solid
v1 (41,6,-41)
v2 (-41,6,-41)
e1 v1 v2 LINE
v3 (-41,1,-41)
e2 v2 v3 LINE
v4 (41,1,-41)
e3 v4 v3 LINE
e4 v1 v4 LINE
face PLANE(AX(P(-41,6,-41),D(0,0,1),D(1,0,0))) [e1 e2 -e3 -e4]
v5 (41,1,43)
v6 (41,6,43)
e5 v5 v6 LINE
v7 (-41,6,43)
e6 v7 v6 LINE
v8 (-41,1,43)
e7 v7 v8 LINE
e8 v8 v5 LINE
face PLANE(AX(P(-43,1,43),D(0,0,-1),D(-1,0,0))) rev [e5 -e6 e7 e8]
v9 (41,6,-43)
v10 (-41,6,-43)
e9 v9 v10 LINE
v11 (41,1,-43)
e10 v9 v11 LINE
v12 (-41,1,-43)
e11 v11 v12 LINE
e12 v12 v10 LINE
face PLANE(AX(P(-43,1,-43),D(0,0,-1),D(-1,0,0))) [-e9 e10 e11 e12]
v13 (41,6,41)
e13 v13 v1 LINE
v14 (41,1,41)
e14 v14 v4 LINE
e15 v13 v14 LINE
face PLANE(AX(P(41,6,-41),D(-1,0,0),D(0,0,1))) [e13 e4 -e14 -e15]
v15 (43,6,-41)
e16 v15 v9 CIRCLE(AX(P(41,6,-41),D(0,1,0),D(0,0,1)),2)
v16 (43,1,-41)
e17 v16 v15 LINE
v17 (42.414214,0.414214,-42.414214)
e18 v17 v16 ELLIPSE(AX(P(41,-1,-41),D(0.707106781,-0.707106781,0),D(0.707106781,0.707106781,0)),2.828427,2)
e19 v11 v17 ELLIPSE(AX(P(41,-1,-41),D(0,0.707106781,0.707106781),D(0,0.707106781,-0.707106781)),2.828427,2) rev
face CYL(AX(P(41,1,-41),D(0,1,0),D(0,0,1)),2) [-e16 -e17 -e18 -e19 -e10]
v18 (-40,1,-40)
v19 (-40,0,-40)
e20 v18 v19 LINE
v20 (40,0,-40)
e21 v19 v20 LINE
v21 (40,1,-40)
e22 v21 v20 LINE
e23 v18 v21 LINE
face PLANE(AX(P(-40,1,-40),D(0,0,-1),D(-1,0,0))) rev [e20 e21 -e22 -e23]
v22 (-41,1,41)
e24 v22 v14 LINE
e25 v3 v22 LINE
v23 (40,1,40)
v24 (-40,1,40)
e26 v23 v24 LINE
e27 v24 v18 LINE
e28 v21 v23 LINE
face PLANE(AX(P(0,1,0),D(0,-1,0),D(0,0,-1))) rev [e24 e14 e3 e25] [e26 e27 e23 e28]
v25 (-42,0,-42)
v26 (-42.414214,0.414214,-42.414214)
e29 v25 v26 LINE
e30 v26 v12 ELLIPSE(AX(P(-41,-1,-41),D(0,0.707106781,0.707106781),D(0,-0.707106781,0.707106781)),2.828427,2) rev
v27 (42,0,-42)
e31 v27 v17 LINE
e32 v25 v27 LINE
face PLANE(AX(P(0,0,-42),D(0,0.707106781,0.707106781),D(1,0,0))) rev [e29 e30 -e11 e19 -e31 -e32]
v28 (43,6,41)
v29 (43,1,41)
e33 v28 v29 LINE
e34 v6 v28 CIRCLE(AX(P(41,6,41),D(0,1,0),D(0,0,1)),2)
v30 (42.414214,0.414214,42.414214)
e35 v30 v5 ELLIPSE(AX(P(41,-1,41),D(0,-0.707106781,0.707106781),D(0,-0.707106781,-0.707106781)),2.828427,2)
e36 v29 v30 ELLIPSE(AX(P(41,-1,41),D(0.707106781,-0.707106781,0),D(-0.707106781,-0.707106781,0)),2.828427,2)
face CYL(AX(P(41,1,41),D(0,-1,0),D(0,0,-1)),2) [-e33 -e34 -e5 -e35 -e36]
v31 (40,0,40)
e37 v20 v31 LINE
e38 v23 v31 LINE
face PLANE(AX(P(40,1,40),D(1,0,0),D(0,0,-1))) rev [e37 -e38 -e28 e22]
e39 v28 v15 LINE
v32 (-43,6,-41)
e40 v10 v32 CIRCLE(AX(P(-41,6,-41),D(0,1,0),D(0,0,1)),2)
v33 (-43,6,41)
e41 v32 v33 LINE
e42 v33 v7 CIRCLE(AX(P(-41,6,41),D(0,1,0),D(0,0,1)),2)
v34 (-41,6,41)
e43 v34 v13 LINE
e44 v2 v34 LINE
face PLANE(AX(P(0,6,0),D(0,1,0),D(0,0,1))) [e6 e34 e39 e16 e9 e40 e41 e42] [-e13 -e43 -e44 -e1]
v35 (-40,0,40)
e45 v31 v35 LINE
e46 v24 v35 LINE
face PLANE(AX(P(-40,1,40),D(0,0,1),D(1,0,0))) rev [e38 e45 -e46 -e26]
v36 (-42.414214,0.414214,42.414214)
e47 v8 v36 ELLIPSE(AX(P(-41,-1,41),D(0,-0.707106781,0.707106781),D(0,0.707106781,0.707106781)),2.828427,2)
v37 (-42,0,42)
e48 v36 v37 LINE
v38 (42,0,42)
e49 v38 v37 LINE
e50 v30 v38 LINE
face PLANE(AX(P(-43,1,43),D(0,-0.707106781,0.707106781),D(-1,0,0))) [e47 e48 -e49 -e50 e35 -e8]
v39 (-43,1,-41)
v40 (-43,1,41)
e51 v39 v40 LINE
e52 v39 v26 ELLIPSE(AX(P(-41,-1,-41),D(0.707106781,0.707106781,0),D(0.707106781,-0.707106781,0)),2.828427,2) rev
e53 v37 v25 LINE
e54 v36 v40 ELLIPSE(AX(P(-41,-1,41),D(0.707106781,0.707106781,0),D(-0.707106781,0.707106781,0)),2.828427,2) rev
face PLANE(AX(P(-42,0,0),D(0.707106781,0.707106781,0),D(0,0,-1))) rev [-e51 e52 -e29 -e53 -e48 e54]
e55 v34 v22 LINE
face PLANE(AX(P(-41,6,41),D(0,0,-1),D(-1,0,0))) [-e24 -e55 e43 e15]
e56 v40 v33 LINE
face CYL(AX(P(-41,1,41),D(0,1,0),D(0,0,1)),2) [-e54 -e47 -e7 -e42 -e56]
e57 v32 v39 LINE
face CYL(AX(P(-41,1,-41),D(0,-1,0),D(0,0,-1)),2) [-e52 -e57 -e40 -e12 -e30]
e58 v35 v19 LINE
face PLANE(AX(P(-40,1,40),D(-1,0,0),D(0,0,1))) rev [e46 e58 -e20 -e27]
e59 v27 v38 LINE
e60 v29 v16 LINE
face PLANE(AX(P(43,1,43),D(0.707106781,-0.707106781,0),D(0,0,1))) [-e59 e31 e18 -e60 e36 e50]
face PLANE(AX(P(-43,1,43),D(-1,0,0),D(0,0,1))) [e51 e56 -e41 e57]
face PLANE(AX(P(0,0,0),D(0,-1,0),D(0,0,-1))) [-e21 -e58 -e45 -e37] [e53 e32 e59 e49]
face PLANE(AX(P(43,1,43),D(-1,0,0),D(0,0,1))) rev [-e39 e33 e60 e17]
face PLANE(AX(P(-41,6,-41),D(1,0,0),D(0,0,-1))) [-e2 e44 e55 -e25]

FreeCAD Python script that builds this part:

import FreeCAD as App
import Part
import Sketcher

V = App.Vector


def edges_at(feature, points):
    """Names of the edges that pass closest to the given points."""
    edges = feature.Shape.Edges
    near = lambda p: min(range(len(edges)), key=lambda i: edges[i].distToShape(Part.Vertex(*p))[0])
    return sorted({f"Edge{near(p) + 1}" for p in points})


def add_polygon(sketch, points):
    """Adds a closed chain of lines whose ends are joined by coincident constraints."""
    first, n = sketch.GeometryCount, len(points)
    for a, b in zip(points, points[1:] + points[:1]):
        sketch.addGeometry(Part.LineSegment(App.Vector(*a, 0), App.Vector(*b, 0)), False)
    for i in range(n):
        sketch.addConstraint(Sketcher.Constraint("Coincident", first + i, 2, first + (i + 1) % n, 1))

doc = App.newDocument("Part")
params = doc.addObject("Spreadsheet::Sheet", "Params")
for row, (alias, value) in enumerate([
    ("sketch1_width", "86 mm"),
    ("pad1_length", "1 mm"),
    ("sketch2_width", "80 mm"),
    ("sketch3_width", "86 mm"),
    ("sketch3_width2", "82 mm"),
    ("pad2_length", "5 mm"),
    ("chamfer_size", "1 mm"),
    ("fillet_radius", "2 mm"),
], start=1):
    params.set(f"A{row}", alias)
    params.set(f"B{row}", "=" + value)
    params.setAlias(f"B{row}", alias)

body = doc.addObject("PartDesign::Body", "Body")

# Sketch on XZ plane
sketch1 = body.newObject("Sketcher::SketchObject", "Sketch")
sketch1.AttachmentSupport = (doc.getObject("XZ_Plane"), [""])
sketch1.MapMode = "FlatFace"
add_polygon(sketch1, [(-43, -43), (-43, 43), (43, 43), (43, -43)])  # lines 0-3
sketch1.addConstraint([
    Sketcher.Constraint("Vertical", 0),
    Sketcher.Constraint("Horizontal", 1),
    Sketcher.Constraint("Vertical", 2),
    Sketcher.Constraint("Horizontal", 3),
    Sketcher.Constraint("Symmetric", 0, 2, 2, 2, -1, 1),
    Sketcher.Constraint("Equal", 3, 0),
    Sketcher.Constraint("DistanceX", 1, 1, 1, 2, 86.0),
])
sketch1.setExpression("Constraints[10]", "Params.sketch1_width")
pad1 = body.newObject("PartDesign::Pad", "Pad")
pad1.Profile = sketch1
pad1.setExpression("Length", "Params.pad1_length")
pad1.Reversed = True

# Sketch on XZ plane
sketch2 = body.newObject("Sketcher::SketchObject", "Sketch001")
sketch2.AttachmentSupport = (doc.getObject("XZ_Plane"), [""])
sketch2.MapMode = "FlatFace"
add_polygon(sketch2, [(-40, 40), (-40, -40), (40, -40), (40, 40)])  # lines 0-3
sketch2.addConstraint([
    Sketcher.Constraint("Vertical", 0),
    Sketcher.Constraint("Horizontal", 1),
    Sketcher.Constraint("Vertical", 2),
    Sketcher.Constraint("Horizontal", 3),
    Sketcher.Constraint("Symmetric", 0, 2, 2, 2, -1, 1),
    Sketcher.Constraint("Equal", 3, 0),
    Sketcher.Constraint("DistanceX", 1, 1, 1, 2, 80.0),
])
sketch2.setExpression("Constraints[10]", "Params.sketch2_width")
pocket1 = body.newObject("PartDesign::Pocket", "Pocket")
pocket1.Profile = sketch2
pocket1.Type = "ThroughAll"

# Sketch on XZ plane
sketch3 = body.newObject("Sketcher::SketchObject", "Sketch002")
sketch3.AttachmentSupport = (doc.getObject("XZ_Plane"), [""])
sketch3.MapMode = "FlatFace"
sketch3.AttachmentOffset = App.Placement(V(0, 0, -1), App.Rotation())
add_polygon(sketch3, [(-43, -43), (-43, 43), (43, 43), (43, -43)])  # lines 0-3
add_polygon(sketch3, [(41, 41), (-41, 41), (-41, -41), (41, -41)])  # lines 4-7
sketch3.addConstraint([
    Sketcher.Constraint("Vertical", 0),
    Sketcher.Constraint("Horizontal", 1),
    Sketcher.Constraint("Vertical", 2),
    Sketcher.Constraint("Horizontal", 3),
    Sketcher.Constraint("Horizontal", 4),
    Sketcher.Constraint("Vertical", 5),
    Sketcher.Constraint("Horizontal", 6),
    Sketcher.Constraint("Vertical", 7),
    Sketcher.Constraint("Symmetric", 0, 2, 2, 2, -1, 1),
    Sketcher.Constraint("Symmetric", 4, 2, 6, 2, -1, 1),
    Sketcher.Constraint("Equal", 3, 0),
    Sketcher.Constraint("Equal", 6, 5),
    Sketcher.Constraint("DistanceX", 1, 1, 1, 2, 86.0),
    Sketcher.Constraint("DistanceX", 4, 2, 4, 1, 82.0),
])
sketch3.setExpression("Constraints[20]", "Params.sketch3_width")
sketch3.setExpression("Constraints[21]", "Params.sketch3_width2")
pad2 = body.newObject("PartDesign::Pad", "Pad001")
pad2.Profile = sketch3
pad2.setExpression("Length", "Params.pad2_length")
pad2.Reversed = True
doc.recompute()

chamfer = body.newObject("PartDesign::Chamfer", "Chamfer")
chamfer.Base = (pad2, edges_at(pad2, [
    (0, 0, 43),
    (43, 0, 0),
    (0, 0, -43),
    (-43, 0, 0),
]))
chamfer.setExpression("Size", "Params.chamfer_size")
doc.recompute()

fillet = body.newObject("PartDesign::Fillet", "Fillet")
fillet.Base = (chamfer, edges_at(chamfer, [
    (-43, 3.5, 43),
    (43, 3.5, 43),
    (43, 3.5, -43),
    (-43, 3.5, -43),
]))
fillet.setExpression("Radius", "Params.fillet_radius")

doc.recompute()
